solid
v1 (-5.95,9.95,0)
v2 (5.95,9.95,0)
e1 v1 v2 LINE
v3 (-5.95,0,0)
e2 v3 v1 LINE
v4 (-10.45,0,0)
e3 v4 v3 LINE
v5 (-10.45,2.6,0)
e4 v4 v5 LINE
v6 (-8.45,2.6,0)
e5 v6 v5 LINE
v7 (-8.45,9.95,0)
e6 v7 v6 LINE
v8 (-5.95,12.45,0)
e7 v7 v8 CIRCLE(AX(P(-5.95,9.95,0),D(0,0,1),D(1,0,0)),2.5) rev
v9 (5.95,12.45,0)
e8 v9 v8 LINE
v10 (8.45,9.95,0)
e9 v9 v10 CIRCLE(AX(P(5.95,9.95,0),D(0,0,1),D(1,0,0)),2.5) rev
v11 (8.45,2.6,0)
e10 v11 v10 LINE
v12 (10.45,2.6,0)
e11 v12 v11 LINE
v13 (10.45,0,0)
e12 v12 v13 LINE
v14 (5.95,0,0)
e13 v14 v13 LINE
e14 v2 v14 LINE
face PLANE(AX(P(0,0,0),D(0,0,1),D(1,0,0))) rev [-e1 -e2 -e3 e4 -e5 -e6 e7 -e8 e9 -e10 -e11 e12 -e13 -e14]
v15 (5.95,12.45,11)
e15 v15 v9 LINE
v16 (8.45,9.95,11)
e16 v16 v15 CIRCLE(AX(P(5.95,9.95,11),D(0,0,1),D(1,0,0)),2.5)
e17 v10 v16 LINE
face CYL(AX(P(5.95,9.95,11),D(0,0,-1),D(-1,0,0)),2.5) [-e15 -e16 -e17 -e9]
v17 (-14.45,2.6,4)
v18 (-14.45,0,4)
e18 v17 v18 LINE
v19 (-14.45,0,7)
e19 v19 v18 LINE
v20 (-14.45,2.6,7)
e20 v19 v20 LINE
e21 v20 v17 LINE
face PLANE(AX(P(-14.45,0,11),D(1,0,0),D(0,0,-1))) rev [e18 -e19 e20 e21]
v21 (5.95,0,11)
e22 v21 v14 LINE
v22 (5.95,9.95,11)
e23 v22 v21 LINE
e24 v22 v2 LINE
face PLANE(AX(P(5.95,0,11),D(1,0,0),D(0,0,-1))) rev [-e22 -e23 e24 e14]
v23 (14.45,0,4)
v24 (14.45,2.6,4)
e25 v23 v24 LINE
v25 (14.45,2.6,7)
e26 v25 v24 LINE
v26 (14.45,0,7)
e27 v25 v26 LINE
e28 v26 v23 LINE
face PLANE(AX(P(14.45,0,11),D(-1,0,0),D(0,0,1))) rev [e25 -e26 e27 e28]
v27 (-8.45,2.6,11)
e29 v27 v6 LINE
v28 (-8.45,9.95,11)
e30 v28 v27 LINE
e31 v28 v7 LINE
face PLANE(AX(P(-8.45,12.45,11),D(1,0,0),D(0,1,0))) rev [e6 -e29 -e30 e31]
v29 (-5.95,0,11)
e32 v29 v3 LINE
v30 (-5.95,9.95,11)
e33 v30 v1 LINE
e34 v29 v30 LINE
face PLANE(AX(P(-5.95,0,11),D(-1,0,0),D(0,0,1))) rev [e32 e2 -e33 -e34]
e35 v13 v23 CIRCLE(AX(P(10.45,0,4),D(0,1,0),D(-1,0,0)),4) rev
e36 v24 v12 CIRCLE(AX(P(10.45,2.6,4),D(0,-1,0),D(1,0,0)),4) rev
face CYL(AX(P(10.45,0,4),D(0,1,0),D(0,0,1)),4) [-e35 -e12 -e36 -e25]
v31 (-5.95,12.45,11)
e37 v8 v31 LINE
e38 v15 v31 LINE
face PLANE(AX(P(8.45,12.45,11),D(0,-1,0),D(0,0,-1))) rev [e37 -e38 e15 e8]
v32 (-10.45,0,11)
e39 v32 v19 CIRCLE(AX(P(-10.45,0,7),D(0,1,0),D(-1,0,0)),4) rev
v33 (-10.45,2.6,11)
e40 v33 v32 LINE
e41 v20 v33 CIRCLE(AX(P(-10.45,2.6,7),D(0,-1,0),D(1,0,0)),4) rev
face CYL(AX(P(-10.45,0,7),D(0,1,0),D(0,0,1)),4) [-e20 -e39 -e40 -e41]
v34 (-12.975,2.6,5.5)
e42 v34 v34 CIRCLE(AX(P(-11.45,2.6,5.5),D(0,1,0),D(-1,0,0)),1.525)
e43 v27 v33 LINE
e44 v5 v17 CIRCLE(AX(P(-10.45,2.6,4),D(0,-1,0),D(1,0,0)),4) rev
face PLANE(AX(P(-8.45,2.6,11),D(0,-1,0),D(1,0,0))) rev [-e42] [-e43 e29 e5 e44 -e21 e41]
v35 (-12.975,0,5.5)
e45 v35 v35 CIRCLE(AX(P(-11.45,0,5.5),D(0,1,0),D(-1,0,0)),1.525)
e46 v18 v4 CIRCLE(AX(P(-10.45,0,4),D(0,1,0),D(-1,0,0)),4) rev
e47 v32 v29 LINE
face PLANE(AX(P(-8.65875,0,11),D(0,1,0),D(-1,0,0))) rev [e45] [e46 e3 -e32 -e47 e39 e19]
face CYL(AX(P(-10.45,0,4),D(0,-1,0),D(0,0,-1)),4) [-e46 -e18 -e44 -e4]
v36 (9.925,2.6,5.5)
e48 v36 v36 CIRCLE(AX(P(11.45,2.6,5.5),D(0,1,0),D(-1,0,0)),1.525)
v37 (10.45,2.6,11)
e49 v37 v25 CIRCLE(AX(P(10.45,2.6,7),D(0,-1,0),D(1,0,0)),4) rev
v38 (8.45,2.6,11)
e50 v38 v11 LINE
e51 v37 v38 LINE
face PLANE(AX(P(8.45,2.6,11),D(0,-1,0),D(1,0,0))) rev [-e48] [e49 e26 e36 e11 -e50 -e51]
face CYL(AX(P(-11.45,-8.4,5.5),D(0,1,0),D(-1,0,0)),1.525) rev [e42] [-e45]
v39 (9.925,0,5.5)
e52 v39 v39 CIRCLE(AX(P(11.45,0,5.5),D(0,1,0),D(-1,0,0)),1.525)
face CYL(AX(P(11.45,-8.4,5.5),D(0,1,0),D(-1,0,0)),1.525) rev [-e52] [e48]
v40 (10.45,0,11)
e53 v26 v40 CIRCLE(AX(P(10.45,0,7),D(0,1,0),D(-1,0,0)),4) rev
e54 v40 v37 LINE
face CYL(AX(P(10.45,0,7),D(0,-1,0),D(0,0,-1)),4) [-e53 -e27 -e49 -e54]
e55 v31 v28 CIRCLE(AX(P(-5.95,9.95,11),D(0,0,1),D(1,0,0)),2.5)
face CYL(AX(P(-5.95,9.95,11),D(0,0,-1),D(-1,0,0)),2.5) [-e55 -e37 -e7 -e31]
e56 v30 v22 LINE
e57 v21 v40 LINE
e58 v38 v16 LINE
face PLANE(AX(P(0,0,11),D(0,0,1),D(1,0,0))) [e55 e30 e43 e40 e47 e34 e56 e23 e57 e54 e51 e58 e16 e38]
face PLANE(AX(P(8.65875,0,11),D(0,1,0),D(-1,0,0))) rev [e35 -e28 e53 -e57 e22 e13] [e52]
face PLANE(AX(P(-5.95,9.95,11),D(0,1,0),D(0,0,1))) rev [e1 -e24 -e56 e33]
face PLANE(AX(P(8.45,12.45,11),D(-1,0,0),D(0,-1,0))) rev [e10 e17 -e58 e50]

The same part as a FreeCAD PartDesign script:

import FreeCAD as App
import Part
import Sketcher
from FreeCAD import Vector
Q = App.Units.Quantity


def edges_at(feature, points):
    """Names of the edges that pass closest to the given points."""
    edges = feature.Shape.Edges
    near = lambda p: min(range(len(edges)), key=lambda i: edges[i].distToShape(Part.Vertex(*p))[0])
    return sorted({f"Edge{near(p) + 1}" for p in points})

doc = App.newDocument("Part")
body = doc.addObject("PartDesign::Body", "Body")

# Sketch on XY plane
sketch1 = body.newObject("Sketcher::SketchObject", "Sketch")
sketch1.AttachmentSupport = (doc.getObject("XY_Plane"), [""])
sketch1.MapMode = "FlatFace"
sketch1.addGeometry(Part.LineSegment(Vector(-5.95, 0, 0), Vector(-5.95, 9.95, 0)), False)
sketch1.addGeometry(Part.LineSegment(Vector(-5.95, 9.95, 0), Vector(5.95, 9.95, 0)), False)
sketch1.addGeometry(Part.LineSegment(Vector(5.95, 9.95, 0), Vector(5.95, 0, 0)), False)
sketch1.addGeometry(Part.LineSegment(Vector(5.95, 0, 0), Vector(14.45, 0, 0)), False)
sketch1.addGeometry(Part.LineSegment(Vector(14.45, 0, 0), Vector(14.45, 2.6, 0)), False)
sketch1.addGeometry(Part.LineSegment(Vector(14.45, 2.6, 0), Vector(8.45, 2.6, 0)), False)
sketch1.addGeometry(Part.LineSegment(Vector(8.45, 2.6, 0), Vector(8.45, 12.45, 0)), False)
sketch1.addGeometry(Part.LineSegment(Vector(8.45, 12.45, 0), Vector(-8.45, 12.45, 0)), False)
sketch1.addGeometry(Part.LineSegment(Vector(-8.45, 12.45, 0), Vector(-8.45, 2.6, 0)), False)
sketch1.addGeometry(Part.LineSegment(Vector(-8.45, 2.6, 0), Vector(-14.45, 2.6, 0)), False)
sketch1.addGeometry(Part.LineSegment(Vector(-14.45, 2.6, 0), Vector(-14.45, 0, 0)), False)
sketch1.addGeometry(Part.LineSegment(Vector(-14.45, 0, 0), Vector(-5.95, 0, 0)), False)
sketch1.addConstraint(Sketcher.Constraint("Coincident", 0, 2, 1, 1))
sketch1.addConstraint(Sketcher.Constraint("Coincident", 1, 2, 2, 1))
sketch1.addConstraint(Sketcher.Constraint("Coincident", 2, 2, 3, 1))
sketch1.addConstraint(Sketcher.Constraint("Coincident", 3, 2, 4, 1))
sketch1.addConstraint(Sketcher.Constraint("Coincident", 4, 2, 5, 1))
sketch1.addConstraint(Sketcher.Constraint("Coincident", 5, 2, 6, 1))
sketch1.addConstraint(Sketcher.Constraint("Coincident", 6, 2, 7, 1))
sketch1.addConstraint(Sketcher.Constraint("Coincident", 7, 2, 8, 1))
sketch1.addConstraint(Sketcher.Constraint("Coincident", 8, 2, 9, 1))
sketch1.addConstraint(Sketcher.Constraint("Coincident", 9, 2, 10, 1))
sketch1.addConstraint(Sketcher.Constraint("Coincident", 10, 2, 11, 1))
sketch1.addConstraint(Sketcher.Constraint("Coincident", 11, 2, 0, 1))
sketch1.addConstraint(Sketcher.Constraint("Vertical", 0))
sketch1.addConstraint(Sketcher.Constraint("Horizontal", 1))
sketch1.addConstraint(Sketcher.Constraint("Vertical", 2))
sketch1.addConstraint(Sketcher.Constraint("Horizontal", 3))
sketch1.addConstraint(Sketcher.Constraint("Vertical", 4))
sketch1.addConstraint(Sketcher.Constraint("Horizontal", 5))
sketch1.addConstraint(Sketcher.Constraint("Vertical", 6))
sketch1.addConstraint(Sketcher.Constraint("Horizontal", 7))
sketch1.addConstraint(Sketcher.Constraint("Vertical", 8))
sketch1.addConstraint(Sketcher.Constraint("Horizontal", 9))
sketch1.addConstraint(Sketcher.Constraint("Vertical", 10))
sketch1.addConstraint(Sketcher.Constraint("Horizontal", 11))
sketch1.addConstraint(Sketcher.Constraint("Symmetric", 3, 2, 10, 2, -1, 1))
sketch1.addConstraint(Sketcher.Constraint("Symmetric", 5, 2, 8, 2, -2))
sketch1.addConstraint(Sketcher.Constraint("Symmetric", 2, 2, 11, 2, -2))
sketch1.addConstraint(Sketcher.Constraint("DistanceX", 5, 2, 5, 1, Q("6 mm")))
sketch1.addConstraint(Sketcher.Constraint("DistanceX", 1, 1, 1, 2, Q("11.9 mm")))
sketch1.addConstraint(Sketcher.Constraint("DistanceX", 3, 1, 3, 2, Q("8.5 mm")))
sketch1.addConstraint(Sketcher.Constraint("DistanceY", 4, 1, 4, 2, Q("2.6 mm")))
sketch1.addConstraint(Sketcher.Constraint("DistanceY", 0, 1, 0, 2, Q("9.95 mm")))
sketch1.addConstraint(Sketcher.Constraint("DistanceY", 6, 1, 6, 2, Q("9.85 mm")))
pad1 = body.newObject("PartDesign::Pad", "Pad")
pad1.Profile = sketch1
pad1.Length = 11
doc.recompute()

fillet = body.newObject("PartDesign::Fillet", "Fillet")
fillet.Base = (pad1, edges_at(pad1, [
    (-14.45, 1.3, 0),
    (14.45, 1.3, 0),
    (14.45, 1.3, 11),
    (-14.45, 1.3, 11),
]))
fillet.Radius = 4
doc.recompute()

fillet2 = body.newObject("PartDesign::Fillet", "Fillet001")
fillet2.Base = (fillet, edges_at(fillet, [(-8.45, 12.45, 5.5), (8.45, 12.45, 5.5)]))
fillet2.Radius = 2.5

# Sketch on XZ plane
sketch2 = body.newObject("Sketcher::SketchObject", "Sketch001")
sketch2.AttachmentSupport = (doc.getObject("XZ_Plane"), [""])
sketch2.MapMode = "FlatFace"
sketch2.AttachmentOffset = App.Placement(Vector(0, 0, -2.6), App.Rotation())
sketch2.addGeometry(Part.Circle(Vector(-11.45, 5.5, 0), Vector(0, 0, 1), 1.525), False)
sketch2.addGeometry(Part.Circle(Vector(11.45, 5.5, 0), Vector(0, 0, 1), 1.525), False)
sketch2.addConstraint(Sketcher.Constraint("Equal", 0, 1))
sketch2.addConstraint(Sketcher.Constraint("Symmetric", 0, 3, 1, 3, -2))
sketch2.addConstraint(Sketcher.Constraint("Diameter", 0, Q("3.05 mm")))
sketch2.addConstraint(Sketcher.Constraint("DistanceY", -1, 1, 0, 3, Q("5.5 mm")))
sketch2.addConstraint(Sketcher.Constraint("DistanceX", 0, 3, 1, 3, Q("22.9 mm")))
pocket1 = body.newObject("PartDesign::Pocket", "Pocket")
pocket1.Profile = sketch2
pocket1.Length = 11
pocket1.Reversed = True

doc.recompute()
